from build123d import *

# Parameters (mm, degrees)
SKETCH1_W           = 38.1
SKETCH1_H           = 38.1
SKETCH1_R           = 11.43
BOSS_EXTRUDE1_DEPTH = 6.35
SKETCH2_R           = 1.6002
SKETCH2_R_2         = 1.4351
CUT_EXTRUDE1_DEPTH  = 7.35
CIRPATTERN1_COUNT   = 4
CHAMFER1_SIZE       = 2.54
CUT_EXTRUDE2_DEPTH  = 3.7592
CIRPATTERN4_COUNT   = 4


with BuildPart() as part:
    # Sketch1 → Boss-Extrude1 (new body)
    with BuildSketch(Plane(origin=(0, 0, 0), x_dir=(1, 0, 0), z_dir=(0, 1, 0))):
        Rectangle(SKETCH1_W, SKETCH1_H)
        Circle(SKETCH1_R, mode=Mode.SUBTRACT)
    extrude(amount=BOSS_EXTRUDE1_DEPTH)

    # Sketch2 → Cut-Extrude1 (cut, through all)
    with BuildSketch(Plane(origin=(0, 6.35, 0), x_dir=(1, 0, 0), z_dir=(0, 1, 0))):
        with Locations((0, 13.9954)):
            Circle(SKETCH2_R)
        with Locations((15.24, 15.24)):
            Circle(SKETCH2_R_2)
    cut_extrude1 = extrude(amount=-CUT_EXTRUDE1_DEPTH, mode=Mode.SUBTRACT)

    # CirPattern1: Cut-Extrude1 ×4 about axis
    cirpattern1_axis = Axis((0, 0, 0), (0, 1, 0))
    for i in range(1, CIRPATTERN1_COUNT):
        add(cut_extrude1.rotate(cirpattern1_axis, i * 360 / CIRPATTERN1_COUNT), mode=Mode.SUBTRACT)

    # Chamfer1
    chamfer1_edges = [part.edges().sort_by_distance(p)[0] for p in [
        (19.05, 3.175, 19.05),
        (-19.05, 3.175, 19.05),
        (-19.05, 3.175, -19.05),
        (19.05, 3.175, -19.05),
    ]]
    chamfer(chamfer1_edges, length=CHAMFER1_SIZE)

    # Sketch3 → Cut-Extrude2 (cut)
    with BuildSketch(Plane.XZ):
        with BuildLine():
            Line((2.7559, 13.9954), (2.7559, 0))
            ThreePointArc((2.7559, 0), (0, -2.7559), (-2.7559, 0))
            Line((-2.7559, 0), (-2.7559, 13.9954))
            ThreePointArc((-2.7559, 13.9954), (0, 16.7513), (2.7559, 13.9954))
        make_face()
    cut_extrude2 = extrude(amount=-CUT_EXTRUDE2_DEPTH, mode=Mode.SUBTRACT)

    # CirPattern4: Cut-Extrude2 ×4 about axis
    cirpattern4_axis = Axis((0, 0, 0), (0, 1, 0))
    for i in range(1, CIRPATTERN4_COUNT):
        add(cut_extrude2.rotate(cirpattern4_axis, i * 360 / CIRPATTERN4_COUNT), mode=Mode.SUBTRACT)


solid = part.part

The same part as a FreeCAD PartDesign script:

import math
import FreeCAD as App
import Part
import Sketcher
Q = App.Units.Quantity


def edges_at(feature, points):
    """Names of the edges that pass closest to the given points."""
    edges = feature.Shape.Edges
    near = lambda p: min(range(len(edges)), key=lambda i: edges[i].distToShape(Part.Vertex(*p))[0])
    return sorted({f"Edge{near(p) + 1}" for p in points})


def add_polygon(sketch, points):
    """Adds a closed chain of lines whose ends are joined by coincident constraints."""
    first, n = sketch.GeometryCount, len(points)
    for a, b in zip(points, points[1:] + points[:1]):
        sketch.addGeometry(Part.LineSegment(App.Vector(*a, 0), App.Vector(*b, 0)), False)
    for i in range(n):
        sketch.addConstraint(Sketcher.Constraint("Coincident", first + i, 2, first + (i + 1) % n, 1))

doc = App.newDocument("Part")
body = doc.addObject("PartDesign::Body", "Body")

# Sketch on XZ plane
sketch1 = body.newObject("Sketcher::SketchObject", "Sketch")
sketch1.AttachmentSupport = (doc.getObject("XZ_Plane"), [""])
sketch1.MapMode = "FlatFace"
add_polygon(sketch1, [(-19.05, -19.05), (-19.05, 19.05), (19.05, 19.05), (19.05, -19.05)])  # lines 0-3
sketch1.addGeometry(Part.Circle(App.Vector(0, 0, 0), App.Vector(0, 0, 1), 11.43), False)  # 4
sketch1.addConstraint([
    Sketcher.Constraint("Vertical", 0),
    Sketcher.Constraint("Horizontal", 1),
    Sketcher.Constraint("Vertical", 2),
    Sketcher.Constraint("Horizontal", 3),
    Sketcher.Constraint("Coincident", 4, 3, -1, 1),
    Sketcher.Constraint("Symmetric", 0, 2, 2, 2, -1, 1),
    Sketcher.Constraint("Equal", 3, 0),
    Sketcher.Constraint("Diameter", 4, Q("0.9 in")),
    Sketcher.Constraint("DistanceX", 1, 1, 1, 2, Q("1.5 in")),
])
pad1 = body.newObject("PartDesign::Pad", "Pad")
pad1.Profile = sketch1
pad1.Length = Q("0.25 in")
pad1.Reversed = True

# Sketch on XZ plane
sketch2 = body.newObject("Sketcher::SketchObject", "Sketch001")
sketch2.AttachmentSupport = (doc.getObject("XZ_Plane"), [""])
sketch2.MapMode = "FlatFace"
sketch2.AttachmentOffset = App.Placement(App.Vector(0, 0, -0.25 * 25.4), App.Rotation())
sketch2.addGeometry([
    Part.Circle(App.Vector(0, -13.9954, 0), App.Vector(0, 0, 1), 1.6002),
    Part.Circle(App.Vector(15.24, -15.24, 0), App.Vector(0, 0, 1), 1.4351),
], False)
sketch2.addConstraint([
    Sketcher.Constraint("PointOnObject", 0, 3, -2),
    Sketcher.Constraint("Diameter", 0, Q("0.126 in")),
    Sketcher.Constraint("Diameter", 1, Q("0.113 in")),
    Sketcher.Constraint("DistanceX", -1, 1, 1, 3, Q("0.6 in")),
    Sketcher.Constraint("DistanceY", 1, 3, -1, 1, Q("0.6 in")),
    Sketcher.Constraint("DistanceY", 0, 3, -1, 1, Q("0.551 in")),
])
pocket1 = body.newObject("PartDesign::Pocket", "Pocket")
pocket1.Profile = sketch2
pocket1.Type = "ThroughAll"
pocket1.Reversed = True
doc.recompute()

polarpattern = body.newObject("PartDesign::PolarPattern", "PolarPattern")
polarpattern.Originals = [pocket1]
polarpattern.Axis = (doc.getObject("Y_Axis"), [""])
polarpattern.Angle = 360
polarpattern.Occurrences = 4
body.Tip = polarpattern
doc.recompute()

chamfer = body.newObject("PartDesign::Chamfer", "Chamfer")
chamfer.Base = (polarpattern, edges_at(polarpattern, [
    (19.05, 3.175, 19.05),
    (-19.05, 3.175, 19.05),
    (-19.05, 3.175, -19.05),
    (19.05, 3.175, -19.05),
]))
chamfer.Size = Q("0.1 in")

# Sketch on XZ plane
sketch3 = body.newObject("Sketcher::SketchObject", "Sketch002")
sketch3.AttachmentSupport = (doc.getObject("XZ_Plane"), [""])
sketch3.MapMode = "FlatFace"
sketch3.addGeometry([
    Part.LineSegment(App.Vector(2.7559, 0, 0), App.Vector(2.7559, 13.9954, 0)),
    Part.ArcOfCircle(Part.Circle(App.Vector(0, 13.9954, 0), App.Vector(0, 0, 1), 2.7559), math.radians(0), math.radians(180)),
    Part.LineSegment(App.Vector(-2.7559, 13.9954, 0), App.Vector(-2.7559, 0, 0)),
    Part.ArcOfCircle(Part.Circle(App.Vector(0, 0, 0), App.Vector(0, 0, 1), 2.7559), math.radians(180), math.radians(360)),
], False)
sketch3.addConstraint([
    Sketcher.Constraint("Tangent", 0, 2, 1, 1),
    Sketcher.Constraint("Tangent", 1, 2, 2, 1),
    Sketcher.Constraint("Tangent", 2, 2, 3, 1),
    Sketcher.Constraint("Tangent", 3, 2, 0, 1),
    Sketcher.Constraint("Vertical", 0),
    Sketcher.Constraint("Vertical", 2),
    Sketcher.Constraint("Coincident", 3, 3, -1, 1),
    Sketcher.Constraint("Radius", 1, Q("0.1085 in")),
    Sketcher.Constraint("DistanceY", 0, 1, 0, 2, Q("0.551 in")),
])
pocket2 = body.newObject("PartDesign::Pocket", "Pocket001")
pocket2.Profile = sketch3
pocket2.Length = Q("0.148 in")
doc.recompute()

polarpattern2 = body.newObject("PartDesign::PolarPattern", "PolarPattern001")
polarpattern2.Originals = [pocket2]
polarpattern2.Axis = (doc.getObject("Y_Axis"), [""])
polarpattern2.Angle = 360
polarpattern2.Occurrences = 4
body.Tip = polarpattern2

doc.recompute()
